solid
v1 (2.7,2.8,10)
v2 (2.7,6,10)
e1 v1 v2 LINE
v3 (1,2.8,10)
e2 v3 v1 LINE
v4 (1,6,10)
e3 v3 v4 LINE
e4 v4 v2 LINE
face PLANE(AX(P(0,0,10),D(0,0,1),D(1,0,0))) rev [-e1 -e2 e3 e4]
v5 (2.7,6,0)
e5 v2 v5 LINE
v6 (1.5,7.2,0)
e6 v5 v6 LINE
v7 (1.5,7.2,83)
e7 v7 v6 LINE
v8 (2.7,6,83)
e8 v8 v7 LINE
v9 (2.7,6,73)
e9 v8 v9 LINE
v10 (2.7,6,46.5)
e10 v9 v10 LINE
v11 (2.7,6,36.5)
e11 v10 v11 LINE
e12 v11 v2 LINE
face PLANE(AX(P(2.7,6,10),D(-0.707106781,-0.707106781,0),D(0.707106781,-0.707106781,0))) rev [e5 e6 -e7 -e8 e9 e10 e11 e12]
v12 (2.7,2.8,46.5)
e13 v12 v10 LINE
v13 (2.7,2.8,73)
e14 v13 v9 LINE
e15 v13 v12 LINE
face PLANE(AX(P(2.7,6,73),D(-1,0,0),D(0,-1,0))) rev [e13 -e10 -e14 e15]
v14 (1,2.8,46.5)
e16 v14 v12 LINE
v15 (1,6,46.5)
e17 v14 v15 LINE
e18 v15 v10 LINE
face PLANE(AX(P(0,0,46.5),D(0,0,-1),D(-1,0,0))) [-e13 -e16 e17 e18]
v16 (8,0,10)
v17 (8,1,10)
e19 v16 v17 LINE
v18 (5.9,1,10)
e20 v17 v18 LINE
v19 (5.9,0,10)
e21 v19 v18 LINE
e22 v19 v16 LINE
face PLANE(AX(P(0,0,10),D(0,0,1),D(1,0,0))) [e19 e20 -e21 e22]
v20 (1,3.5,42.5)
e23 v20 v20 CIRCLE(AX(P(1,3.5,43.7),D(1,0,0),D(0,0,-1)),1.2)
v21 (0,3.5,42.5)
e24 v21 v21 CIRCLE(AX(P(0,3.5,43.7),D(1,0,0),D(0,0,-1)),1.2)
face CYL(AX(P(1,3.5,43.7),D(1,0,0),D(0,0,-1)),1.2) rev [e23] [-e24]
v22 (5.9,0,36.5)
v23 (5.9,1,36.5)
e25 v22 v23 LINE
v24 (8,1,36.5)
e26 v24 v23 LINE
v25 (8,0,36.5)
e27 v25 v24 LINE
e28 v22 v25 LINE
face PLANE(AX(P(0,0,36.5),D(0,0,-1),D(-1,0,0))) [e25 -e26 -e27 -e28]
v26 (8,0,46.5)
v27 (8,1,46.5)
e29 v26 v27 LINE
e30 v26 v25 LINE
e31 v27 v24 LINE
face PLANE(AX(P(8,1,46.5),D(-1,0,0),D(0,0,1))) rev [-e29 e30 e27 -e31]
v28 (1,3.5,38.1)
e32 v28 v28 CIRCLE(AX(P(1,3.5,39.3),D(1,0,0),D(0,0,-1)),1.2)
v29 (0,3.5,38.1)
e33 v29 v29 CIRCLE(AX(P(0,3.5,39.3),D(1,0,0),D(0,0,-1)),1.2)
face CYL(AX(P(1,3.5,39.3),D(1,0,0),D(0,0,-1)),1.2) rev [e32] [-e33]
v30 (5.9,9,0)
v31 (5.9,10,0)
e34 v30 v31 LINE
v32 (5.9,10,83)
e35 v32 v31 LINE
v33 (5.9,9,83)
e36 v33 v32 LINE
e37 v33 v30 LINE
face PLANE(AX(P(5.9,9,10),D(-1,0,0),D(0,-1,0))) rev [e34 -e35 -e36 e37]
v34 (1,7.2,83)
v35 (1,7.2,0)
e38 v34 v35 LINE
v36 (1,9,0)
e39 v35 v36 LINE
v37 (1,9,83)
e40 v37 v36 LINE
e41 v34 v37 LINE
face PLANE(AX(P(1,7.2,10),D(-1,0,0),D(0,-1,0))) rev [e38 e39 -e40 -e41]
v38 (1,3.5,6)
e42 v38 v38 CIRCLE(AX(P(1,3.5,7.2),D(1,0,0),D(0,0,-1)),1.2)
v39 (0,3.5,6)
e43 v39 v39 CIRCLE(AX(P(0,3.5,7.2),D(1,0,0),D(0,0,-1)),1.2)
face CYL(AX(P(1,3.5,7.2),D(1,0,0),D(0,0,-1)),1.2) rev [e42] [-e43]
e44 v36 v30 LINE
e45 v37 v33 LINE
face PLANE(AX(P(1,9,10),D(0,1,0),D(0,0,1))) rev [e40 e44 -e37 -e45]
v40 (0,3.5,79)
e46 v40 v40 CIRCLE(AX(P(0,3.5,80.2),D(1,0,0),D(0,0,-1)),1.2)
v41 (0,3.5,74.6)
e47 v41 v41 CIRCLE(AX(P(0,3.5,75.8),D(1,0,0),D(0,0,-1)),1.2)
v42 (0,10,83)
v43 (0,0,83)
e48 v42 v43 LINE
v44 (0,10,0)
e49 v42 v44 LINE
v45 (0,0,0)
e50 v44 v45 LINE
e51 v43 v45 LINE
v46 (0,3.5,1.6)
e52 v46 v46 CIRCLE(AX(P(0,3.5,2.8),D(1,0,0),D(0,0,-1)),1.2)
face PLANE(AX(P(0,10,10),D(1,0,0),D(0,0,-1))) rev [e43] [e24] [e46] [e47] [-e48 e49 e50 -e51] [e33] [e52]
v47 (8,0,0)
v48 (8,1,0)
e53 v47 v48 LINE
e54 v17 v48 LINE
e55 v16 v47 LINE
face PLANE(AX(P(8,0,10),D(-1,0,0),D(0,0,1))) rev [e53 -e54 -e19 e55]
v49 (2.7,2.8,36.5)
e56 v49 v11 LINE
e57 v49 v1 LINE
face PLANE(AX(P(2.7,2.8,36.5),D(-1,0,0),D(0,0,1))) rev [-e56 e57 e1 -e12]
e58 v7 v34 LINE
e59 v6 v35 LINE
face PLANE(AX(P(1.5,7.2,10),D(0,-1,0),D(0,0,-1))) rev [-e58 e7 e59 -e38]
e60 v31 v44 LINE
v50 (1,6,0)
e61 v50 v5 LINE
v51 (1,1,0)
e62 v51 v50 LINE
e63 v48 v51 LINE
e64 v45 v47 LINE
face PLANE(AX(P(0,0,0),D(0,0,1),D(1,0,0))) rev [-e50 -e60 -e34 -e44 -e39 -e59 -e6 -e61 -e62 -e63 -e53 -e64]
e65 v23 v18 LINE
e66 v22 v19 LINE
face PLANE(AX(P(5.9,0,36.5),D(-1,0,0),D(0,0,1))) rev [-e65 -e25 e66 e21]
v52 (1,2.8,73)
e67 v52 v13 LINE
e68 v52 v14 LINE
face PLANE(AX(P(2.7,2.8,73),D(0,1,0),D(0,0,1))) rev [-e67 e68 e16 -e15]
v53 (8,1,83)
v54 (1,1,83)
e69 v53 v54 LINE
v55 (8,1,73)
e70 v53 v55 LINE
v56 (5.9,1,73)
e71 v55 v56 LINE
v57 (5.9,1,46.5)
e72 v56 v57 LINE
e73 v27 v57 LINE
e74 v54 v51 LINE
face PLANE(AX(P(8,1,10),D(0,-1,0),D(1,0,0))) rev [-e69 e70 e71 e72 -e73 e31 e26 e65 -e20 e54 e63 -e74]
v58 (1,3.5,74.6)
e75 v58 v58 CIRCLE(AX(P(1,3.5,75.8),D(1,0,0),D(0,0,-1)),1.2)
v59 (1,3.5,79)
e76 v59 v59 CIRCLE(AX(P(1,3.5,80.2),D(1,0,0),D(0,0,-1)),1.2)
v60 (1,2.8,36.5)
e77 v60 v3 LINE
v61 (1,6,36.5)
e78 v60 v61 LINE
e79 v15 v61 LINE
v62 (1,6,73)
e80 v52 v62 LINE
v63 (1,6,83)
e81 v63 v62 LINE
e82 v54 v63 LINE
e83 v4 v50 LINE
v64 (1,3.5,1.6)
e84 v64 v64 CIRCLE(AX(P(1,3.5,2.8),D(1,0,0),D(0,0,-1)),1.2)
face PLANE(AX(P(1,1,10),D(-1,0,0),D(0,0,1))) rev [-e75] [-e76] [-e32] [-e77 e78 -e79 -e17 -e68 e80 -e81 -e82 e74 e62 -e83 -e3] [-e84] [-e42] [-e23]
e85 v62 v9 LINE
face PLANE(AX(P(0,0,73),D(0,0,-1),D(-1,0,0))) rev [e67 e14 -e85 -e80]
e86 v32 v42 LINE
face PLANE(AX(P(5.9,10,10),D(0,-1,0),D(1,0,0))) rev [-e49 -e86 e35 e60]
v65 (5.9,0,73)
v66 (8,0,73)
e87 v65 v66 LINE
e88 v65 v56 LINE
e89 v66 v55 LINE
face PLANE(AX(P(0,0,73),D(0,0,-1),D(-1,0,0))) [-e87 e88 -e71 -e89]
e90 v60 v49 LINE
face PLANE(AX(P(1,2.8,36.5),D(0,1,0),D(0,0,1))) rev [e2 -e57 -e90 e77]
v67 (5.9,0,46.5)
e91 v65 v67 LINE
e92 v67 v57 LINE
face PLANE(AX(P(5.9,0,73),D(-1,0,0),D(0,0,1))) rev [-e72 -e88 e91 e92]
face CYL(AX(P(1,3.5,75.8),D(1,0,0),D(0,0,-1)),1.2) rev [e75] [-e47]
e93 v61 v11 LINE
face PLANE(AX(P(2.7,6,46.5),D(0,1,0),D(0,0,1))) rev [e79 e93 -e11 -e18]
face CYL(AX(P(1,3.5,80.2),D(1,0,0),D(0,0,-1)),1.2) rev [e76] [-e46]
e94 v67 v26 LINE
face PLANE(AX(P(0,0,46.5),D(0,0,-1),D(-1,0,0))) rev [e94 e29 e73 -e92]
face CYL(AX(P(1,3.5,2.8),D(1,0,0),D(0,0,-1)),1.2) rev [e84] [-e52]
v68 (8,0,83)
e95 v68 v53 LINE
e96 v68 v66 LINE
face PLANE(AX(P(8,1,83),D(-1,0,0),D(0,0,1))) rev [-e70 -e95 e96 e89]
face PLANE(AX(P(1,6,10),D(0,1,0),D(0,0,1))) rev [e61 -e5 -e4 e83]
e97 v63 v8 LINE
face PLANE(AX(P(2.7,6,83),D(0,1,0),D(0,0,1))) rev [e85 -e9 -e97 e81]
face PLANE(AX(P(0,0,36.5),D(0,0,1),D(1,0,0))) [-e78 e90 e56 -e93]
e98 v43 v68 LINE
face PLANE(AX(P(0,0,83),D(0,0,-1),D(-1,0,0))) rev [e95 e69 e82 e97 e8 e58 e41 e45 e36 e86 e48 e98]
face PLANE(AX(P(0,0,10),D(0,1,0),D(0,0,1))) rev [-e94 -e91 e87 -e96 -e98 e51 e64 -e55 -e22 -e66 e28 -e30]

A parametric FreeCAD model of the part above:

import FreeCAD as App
import Part
import Sketcher
Q = App.Units.Quantity


def add_polygon(sketch, points):
    """Adds a closed chain of lines whose ends are joined by coincident constraints."""
    first, n = sketch.GeometryCount, len(points)
    for a, b in zip(points, points[1:] + points[:1]):
        sketch.addGeometry(Part.LineSegment(App.Vector(*a, 0), App.Vector(*b, 0)), False)
    for i in range(n):
        sketch.addConstraint(Sketcher.Constraint("Coincident", first + i, 2, first + (i + 1) % n, 1))

doc = App.newDocument("Part")
body = doc.addObject("PartDesign::Body", "Body")

# Sketch on XY plane
sketch1 = doc.addObject("Sketcher::SketchObject", "Sketch")
body.addObject(sketch1)
sketch1.AttachmentSupport = (doc.XY_Plane, [""])
sketch1.MapMode = "FlatFace"
add_polygon(sketch1, [(0, 0), (8, 0), (8, 1), (1, 1), (1, 6), (2.7, 6), (1.5, 7.2), (1, 7.2), (1, 9), (5.9, 9), (5.9, 10), (0, 10)])  # lines 0-11
sketch1.addConstraint([
    Sketcher.Constraint("Horizontal", 0),
    Sketcher.Constraint("Vertical", 1),
    Sketcher.Constraint("Horizontal", 2),
    Sketcher.Constraint("Vertical", 3),
    Sketcher.Constraint("Horizontal", 4),
    Sketcher.Constraint("Horizontal", 6),
    Sketcher.Constraint("Vertical", 7),
    Sketcher.Constraint("Horizontal", 8),
    Sketcher.Constraint("Vertical", 9),
    Sketcher.Constraint("Horizontal", 10),
    Sketcher.Constraint("Vertical", 11),
    Sketcher.Constraint("Coincident", 11, 2, -1, 1),
    Sketcher.Constraint("Vertical", 3, 2, 6, 2),
    Sketcher.Constraint("Equal", 1, 9),
    Sketcher.Constraint("DistanceX", 0, 1, 0, 2, Q("8 mm")),
    Sketcher.Constraint("DistanceX", 2, 2, 2, 1, Q("7 mm")),
    Sketcher.Constraint("DistanceY", 1, 1, 1, 2, Q("1 mm")),
    Sketcher.Constraint("DistanceY", 3, 1, 3, 2, Q("5 mm")),
    Sketcher.Constraint("DistanceY", 11, 2, 11, 1, Q("10 mm")),
    Sketcher.Constraint("Angle", 5, Q("135 deg")),
    Sketcher.Constraint("DistanceX", 4, 1, 4, 2, Q("1.7 mm")),
    Sketcher.Constraint("DistanceX", 6, 2, 6, 1, Q("0.5 mm")),
    Sketcher.Constraint("DistanceX", 8, 1, 8, 2, Q("4.9 mm")),
])
pad1 = doc.addObject("PartDesign::Pad", "Pad")
body.addObject(pad1)
pad1.Profile = sketch1
pad1.Length = 10

# Sketch on XY plane
sketch2 = doc.addObject("Sketcher::SketchObject", "Sketch001")
body.addObject(sketch2)
sketch2.AttachmentSupport = (doc.XY_Plane, [""])
sketch2.MapMode = "FlatFace"
sketch2.AttachmentOffset = App.Placement(App.Vector(0, 0, 10), App.Rotation())
add_polygon(sketch2, [(0, 0), (5.9, 0), (5.9, 1), (1, 1), (1, 2.8), (2.7, 2.8), (2.7, 6), (1.5, 7.2), (1, 7.2), (1, 9), (5.9, 9), (5.9, 10), (0, 10)])  # lines 0-12
sketch2.addConstraint([
    Sketcher.Constraint("Horizontal", 0),
    Sketcher.Constraint("Vertical", 1),
    Sketcher.Constraint("Horizontal", 2),
    Sketcher.Constraint("Vertical", 3),
    Sketcher.Constraint("Horizontal", 4),
    Sketcher.Constraint("Vertical", 5),
    Sketcher.Constraint("Horizontal", 7),
    Sketcher.Constraint("Vertical", 8),
    Sketcher.Constraint("Horizontal", 9),
    Sketcher.Constraint("Vertical", 10),
    Sketcher.Constraint("Horizontal", 11),
    Sketcher.Constraint("Vertical", 12),
    Sketcher.Constraint("Coincident", 12, 2, -1, 1),
    Sketcher.Constraint("Vertical", 3, 2, 7, 2),
    Sketcher.Constraint("Vertical", 1, 2, 9, 2),
    Sketcher.Constraint("Equal", 3, 8),
    Sketcher.Constraint("Equal", 1, 10),
    Sketcher.Constraint("DistanceY", 1, 1, 1, 2, Q("1 mm")),
    Sketcher.Constraint("DistanceY", 12, 2, 12, 1, Q("10 mm")),
    Sketcher.Constraint("Angle", 6, Q("135 deg")),
    Sketcher.Constraint("DistanceX", 0, 1, 0, 2, Q("5.9 mm")),
    Sketcher.Constraint("DistanceX", 2, 2, 2, 1, Q("4.9 mm")),
    Sketcher.Constraint("DistanceX", 4, 1, 4, 2, Q("1.7 mm")),
    Sketcher.Constraint("DistanceX", 7, 2, 7, 1, Q("0.5 mm")),
    Sketcher.Constraint("DistanceY", 3, 1, 3, 2, Q("1.8 mm")),
])
pad2 = doc.addObject("PartDesign::Pad", "Pad001")
body.addObject(pad2)
pad2.Profile = sketch2
pad2.Length = 26.5

# Sketch on XY plane
sketch3 = doc.addObject("Sketcher::SketchObject", "Sketch002")
body.addObject(sketch3)
sketch3.AttachmentSupport = (doc.XY_Plane, [""])
sketch3.MapMode = "FlatFace"
sketch3.AttachmentOffset = App.Placement(App.Vector(0, 0, 36.5), App.Rotation())
add_polygon(sketch3, [(0, 0), (8, 0), (8, 1), (1, 1), (1, 6), (2.7, 6), (1.5, 7.2), (1, 7.2), (1, 9), (5.9, 9), (5.9, 10), (0, 10)])  # lines 0-11
sketch3.addConstraint([
    Sketcher.Constraint("Horizontal", 0),
    Sketcher.Constraint("Vertical", 1),
    Sketcher.Constraint("Horizontal", 2),
    Sketcher.Constraint("Vertical", 3),
    Sketcher.Constraint("Horizontal", 4),
    Sketcher.Constraint("Horizontal", 6),
    Sketcher.Constraint("Vertical", 7),
    Sketcher.Constraint("Horizontal", 8),
    Sketcher.Constraint("Vertical", 9),
    Sketcher.Constraint("Horizontal", 10),
    Sketcher.Constraint("Vertical", 11),
    Sketcher.Constraint("Coincident", 11, 2, -1, 1),
    Sketcher.Constraint("Vertical", 3, 2, 6, 2),
    Sketcher.Constraint("Equal", 1, 9),
    Sketcher.Constraint("DistanceX", 0, 1, 0, 2, Q("8 mm")),
    Sketcher.Constraint("DistanceX", 2, 2, 2, 1, Q("7 mm")),
    Sketcher.Constraint("DistanceY", 1, 1, 1, 2, Q("1 mm")),
    Sketcher.Constraint("DistanceY", 3, 1, 3, 2, Q("5 mm")),
    Sketcher.Constraint("DistanceY", 11, 2, 11, 1, Q("10 mm")),
    Sketcher.Constraint("Angle", 5, Q("135 deg")),
    Sketcher.Constraint("DistanceX", 4, 1, 4, 2, Q("1.7 mm")),
    Sketcher.Constraint("DistanceX", 6, 2, 6, 1, Q("0.5 mm")),
    Sketcher.Constraint("DistanceX", 8, 1, 8, 2, Q("4.9 mm")),
])
pad3 = doc.addObject("PartDesign::Pad", "Pad002")
body.addObject(pad3)
pad3.Profile = sketch3
pad3.Length = 10

# Sketch on XY plane
sketch4 = doc.addObject("Sketcher::SketchObject", "Sketch003")
body.addObject(sketch4)
sketch4.AttachmentSupport = (doc.XY_Plane, [""])
sketch4.MapMode = "FlatFace"
sketch4.AttachmentOffset = App.Placement(App.Vector(0, 0, 46.5), App.Rotation())
add_polygon(sketch4, [(0, 0), (5.9, 0), (5.9, 1), (1, 1), (1, 2.8), (2.7, 2.8), (2.7, 6), (1.5, 7.2), (1, 7.2), (1, 9), (5.9, 9), (5.9, 10), (0, 10)])  # lines 0-12
sketch4.addConstraint([
    Sketcher.Constraint("Horizontal", 0),
    Sketcher.Constraint("Vertical", 1),
    Sketcher.Constraint("Horizontal", 2),
    Sketcher.Constraint("Vertical", 3),
    Sketcher.Constraint("Horizontal", 4),
    Sketcher.Constraint("Vertical", 5),
    Sketcher.Constraint("Horizontal", 7),
    Sketcher.Constraint("Vertical", 8),
    Sketcher.Constraint("Horizontal", 9),
    Sketcher.Constraint("Vertical", 10),
    Sketcher.Constraint("Horizontal", 11),
    Sketcher.Constraint("Vertical", 12),
    Sketcher.Constraint("Coincident", 12, 2, -1, 1),
    Sketcher.Constraint("Vertical", 3, 2, 7, 2),
    Sketcher.Constraint("Vertical", 1, 2, 9, 2),
    Sketcher.Constraint("Equal", 3, 8),
    Sketcher.Constraint("Equal", 1, 10),
    Sketcher.Constraint("DistanceY", 1, 1, 1, 2, Q("1 mm")),
    Sketcher.Constraint("DistanceY", 12, 2, 12, 1, Q("10 mm")),
    Sketcher.Constraint("Angle", 6, Q("135 deg")),
    Sketcher.Constraint("DistanceX", 0, 1, 0, 2, Q("5.9 mm")),
    Sketcher.Constraint("DistanceX", 2, 2, 2, 1, Q("4.9 mm")),
    Sketcher.Constraint("DistanceX", 4, 1, 4, 2, Q("1.7 mm")),
    Sketcher.Constraint("DistanceX", 7, 2, 7, 1, Q("0.5 mm")),
    Sketcher.Constraint("DistanceY", 3, 1, 3, 2, Q("1.8 mm")),
])
pad4 = doc.addObject("PartDesign::Pad", "Pad003")
body.addObject(pad4)
pad4.Profile = sketch4
pad4.Length = 26.5

# Sketch on XY plane
sketch5 = doc.addObject("Sketcher::SketchObject", "Sketch004")
body.addObject(sketch5)
sketch5.AttachmentSupport = (doc.XY_Plane, [""])
sketch5.MapMode = "FlatFace"
sketch5.AttachmentOffset = App.Placement(App.Vector(0, 0, 73), App.Rotation())
add_polygon(sketch5, [(0, 0), (8, 0), (8, 1), (1, 1), (1, 6), (2.7, 6), (1.5, 7.2), (1, 7.2), (1, 9), (5.9, 9), (5.9, 10), (0, 10)])  # lines 0-11
sketch5.addConstraint([
    Sketcher.Constraint("Horizontal", 0),
    Sketcher.Constraint("Vertical", 1),
    Sketcher.Constraint("Horizontal", 2),
    Sketcher.Constraint("Vertical", 3),
    Sketcher.Constraint("Horizontal", 4),
    Sketcher.Constraint("Horizontal", 6),
    Sketcher.Constraint("Vertical", 7),
    Sketcher.Constraint("Horizontal", 8),
    Sketcher.Constraint("Vertical", 9),
    Sketcher.Constraint("Horizontal", 10),
    Sketcher.Constraint("Vertical", 11),
    Sketcher.Constraint("Coincident", 11, 2, -1, 1),
    Sketcher.Constraint("Vertical", 3, 2, 6, 2),
    Sketcher.Constraint("Equal", 1, 9),
    Sketcher.Constraint("DistanceX", 0, 1, 0, 2, Q("8 mm")),
    Sketcher.Constraint("DistanceX", 2, 2, 2, 1, Q("7 mm")),
    Sketcher.Constraint("DistanceY", 1, 1, 1, 2, Q("1 mm")),
    Sketcher.Constraint("DistanceY", 3, 1, 3, 2, Q("5 mm")),
    Sketcher.Constraint("DistanceY", 11, 2, 11, 1, Q("10 mm")),
    Sketcher.Constraint("Angle", 5, Q("135 deg")),
    Sketcher.Constraint("DistanceX", 4, 1, 4, 2, Q("1.7 mm")),
    Sketcher.Constraint("DistanceX", 6, 2, 6, 1, Q("0.5 mm")),
    Sketcher.Constraint("DistanceX", 8, 1, 8, 2, Q("4.9 mm")),
])
pad5 = doc.addObject("PartDesign::Pad", "Pad004")
body.addObject(pad5)
pad5.Profile = sketch5
pad5.Length = 10

# Sketch on YZ plane
sketch6 = doc.addObject("Sketcher::SketchObject", "Sketch005")
body.addObject(sketch6)
sketch6.AttachmentSupport = (doc.YZ_Plane, [""])
sketch6.MapMode = "FlatFace"
sketch6.AttachmentOffset = App.Placement(App.Vector(0, 0, 1), App.Rotation())
sketch6.addGeometry([
    Part.Circle(App.Vector(3.5, 2.8, 0), App.Vector(0, 0, 1), 1.2),  # 0
    Part.Circle(App.Vector(3.5, 7.2, 0), App.Vector(0, 0, 1), 1.2),  # 1
    Part.Circle(App.Vector(3.5, 39.3, 0), App.Vector(0, 0, 1), 1.2),  # 2
    Part.Circle(App.Vector(3.5, 43.7, 0), App.Vector(0, 0, 1), 1.2),  # 3
    Part.Circle(App.Vector(3.5, 75.8, 0), App.Vector(0, 0, 1), 1.2),  # 4
    Part.Circle(App.Vector(3.5, 80.2, 0), App.Vector(0, 0, 1), 1.2),  # 5
], False)
sketch6.addConstraint([
    Sketcher.Constraint("Equal", 0, 1),
    Sketcher.Constraint("Equal", 1, 2),
    Sketcher.Constraint("Equal", 2, 3),
    Sketcher.Constraint("Equal", 3, 4),
    Sketcher.Constraint("Equal", 4, 5),
    Sketcher.Constraint("Vertical", 0, 3, 1, 3),
    Sketcher.Constraint("Vertical", 1, 3, 2, 3),
    Sketcher.Constraint("Vertical", 2, 3, 3, 3),
    Sketcher.Constraint("Vertical", 3, 3, 4, 3),
    Sketcher.Constraint("Vertical", 4, 3, 5, 3),
    Sketcher.Constraint("Diameter", 0, Q("2.4 mm")),
    Sketcher.Constraint("DistanceY", 0, 3, 4, 3, Q("73 mm")),
    Sketcher.Constraint("DistanceY", 1, 3, 5, 3, Q("73 mm")),
    Sketcher.Constraint("DistanceX", -1, 1, 0, 3, Q("3.5 mm")),
    Sketcher.Constraint("DistanceY", -1, 1, 0, 3, Q("2.8 mm")),
    Sketcher.Constraint("DistanceY", -1, 1, 1, 3, Q("7.2 mm")),
    Sketcher.Constraint("DistanceY", -1, 1, 2, 3, Q("39.3 mm")),
    Sketcher.Constraint("DistanceY", -1, 1, 3, 3, Q("43.7 mm")),
])
doc.recompute()
hole = doc.addObject("PartDesign::Hole", "Hole")
body.addObject(hole)
hole.Profile = sketch6
hole.ThreadType = "None"
hole.Diameter = 2.4
hole.DepthType = "ThroughAll"

doc.recompute()
